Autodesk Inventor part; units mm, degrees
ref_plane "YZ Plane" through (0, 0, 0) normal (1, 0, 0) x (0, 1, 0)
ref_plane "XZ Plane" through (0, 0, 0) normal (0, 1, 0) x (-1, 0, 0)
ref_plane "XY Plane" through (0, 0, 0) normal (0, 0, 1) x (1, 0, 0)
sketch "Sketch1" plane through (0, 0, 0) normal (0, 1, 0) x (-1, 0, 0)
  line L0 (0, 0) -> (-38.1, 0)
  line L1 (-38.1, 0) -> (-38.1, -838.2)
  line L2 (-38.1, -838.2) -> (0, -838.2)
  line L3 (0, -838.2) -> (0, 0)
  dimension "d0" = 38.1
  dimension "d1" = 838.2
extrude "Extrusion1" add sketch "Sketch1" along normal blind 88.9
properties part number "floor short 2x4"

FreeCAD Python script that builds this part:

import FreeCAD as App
import Part
import Sketcher
Q = App.Units.Quantity


def add_polygon(sketch, points):
    """Adds a closed chain of lines whose ends are joined by coincident constraints."""
    first, n = sketch.GeometryCount, len(points)
    for a, b in zip(points, points[1:] + points[:1]):
        sketch.addGeometry(Part.LineSegment(App.Vector(*a, 0), App.Vector(*b, 0)), False)
    for i in range(n):
        sketch.addConstraint(Sketcher.Constraint("Coincident", first + i, 2, first + (i + 1) % n, 1))

doc = App.newDocument("Part")
body = doc.addObject("PartDesign::Body", "Body")

sketch1 = body.newObject("Sketcher::SketchObject", "Sketch")
sketch1.AttachmentSupport = (doc.getObject("XZ_Plane"), [""])
sketch1.MapMode = "FlatFace"
add_polygon(sketch1, [(0, -838.2), (0, 0), (38.1, 0), (38.1, -838.2)])
sketch1.addConstraint(Sketcher.Constraint("Vertical", 0))
sketch1.addConstraint(Sketcher.Constraint("Horizontal", 1))
sketch1.addConstraint(Sketcher.Constraint("Vertical", 2))
sketch1.addConstraint(Sketcher.Constraint("Horizontal", 3))
sketch1.addConstraint(Sketcher.Constraint("Coincident", 0, 2, -1, 1))
sketch1.addConstraint(Sketcher.Constraint("DistanceY", 0, 1, 0, 2, Q("33 in")))
sketch1.addConstraint(Sketcher.Constraint("DistanceX", 1, 1, 1, 2, Q("1.5 in")))
pad1 = body.newObject("PartDesign::Pad", "Pad")
pad1.Profile = sketch1
pad1.Length = Q("3.5 in")
pad1.Reversed = True

doc.recompute()
